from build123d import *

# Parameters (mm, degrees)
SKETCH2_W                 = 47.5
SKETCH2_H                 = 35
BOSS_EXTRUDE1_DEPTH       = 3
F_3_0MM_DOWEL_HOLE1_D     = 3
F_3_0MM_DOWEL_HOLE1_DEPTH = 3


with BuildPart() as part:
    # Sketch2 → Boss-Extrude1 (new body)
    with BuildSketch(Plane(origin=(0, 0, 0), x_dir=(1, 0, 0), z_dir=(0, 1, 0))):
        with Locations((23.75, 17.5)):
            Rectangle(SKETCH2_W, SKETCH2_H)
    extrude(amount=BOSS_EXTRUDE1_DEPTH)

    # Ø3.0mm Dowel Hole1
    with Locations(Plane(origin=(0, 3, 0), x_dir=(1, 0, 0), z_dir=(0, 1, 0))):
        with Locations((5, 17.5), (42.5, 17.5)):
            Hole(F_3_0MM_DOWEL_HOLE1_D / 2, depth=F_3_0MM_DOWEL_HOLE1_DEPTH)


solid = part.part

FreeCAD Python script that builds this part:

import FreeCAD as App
import Part
import Sketcher

doc = App.newDocument("Part")
params = doc.addObject("Spreadsheet::Sheet", "Params")
for row, (alias, value) in enumerate([
    ("sketch1_height", "35 mm"),
    ("sketch1_width", "47.5 mm"),
    ("pad1_length", "3 mm"),
    ("sketch2_diameter", "3 mm"),
    ("hole_diameter", "3 mm"),
    ("hole_depth", "3 mm"),
], start=1):
    params.set(f"A{row}", alias)
    params.set(f"B{row}", "=" + value)
    params.setAlias(f"B{row}", alias)

body = doc.addObject("PartDesign::Body", "Body")

# Sketch on XZ plane
sketch1 = body.newObject("Sketcher::SketchObject", "Sketch")
sketch1.AttachmentSupport = (doc.getObject("XZ_Plane"), [""])
sketch1.MapMode = "FlatFace"
sketch1.addGeometry(Part.LineSegment(App.Vector(0, -35, 0), App.Vector(0, 0, 0)), False)
sketch1.addGeometry(Part.LineSegment(App.Vector(0, 0, 0), App.Vector(48, 0, 0)), False)
sketch1.addGeometry(Part.LineSegment(App.Vector(48, 0, 0), App.Vector(48, -35, 0)), False)
sketch1.addGeometry(Part.LineSegment(App.Vector(48, -35, 0), App.Vector(0, -35, 0)), False)
sketch1.addConstraint(Sketcher.Constraint("Coincident", 0, 2, 1, 1))
sketch1.addConstraint(Sketcher.Constraint("Coincident", 1, 2, 2, 1))
sketch1.addConstraint(Sketcher.Constraint("Coincident", 2, 2, 3, 1))
sketch1.addConstraint(Sketcher.Constraint("Coincident", 3, 2, 0, 1))
sketch1.addConstraint(Sketcher.Constraint("Vertical", 0))
sketch1.addConstraint(Sketcher.Constraint("Horizontal", 1))
sketch1.addConstraint(Sketcher.Constraint("Vertical", 2))
sketch1.addConstraint(Sketcher.Constraint("Horizontal", 3))
sketch1.addConstraint(Sketcher.Constraint("Coincident", 0, 2, -1, 1))
sketch1.addConstraint(Sketcher.Constraint("DistanceY", 0, 1, 0, 2, 35.0))
sketch1.addConstraint(Sketcher.Constraint("DistanceX", 1, 1, 1, 2, 47.5))
sketch1.setExpression("Constraints[9]", "Params.sketch1_height")
sketch1.setExpression("Constraints[10]", "Params.sketch1_width")
pad1 = body.newObject("PartDesign::Pad", "Pad")
pad1.Profile = sketch1
pad1.setExpression("Length", "Params.pad1_length")
pad1.Reversed = True

# Sketch on XZ plane
sketch2 = body.newObject("Sketcher::SketchObject", "Sketch001")
sketch2.AttachmentSupport = (doc.getObject("XZ_Plane"), [""])
sketch2.MapMode = "FlatFace"
sketch2.AttachmentOffset = App.Placement(App.Vector(0, 0, -3), App.Rotation())
sketch2.addGeometry(Part.Circle(App.Vector(5, -17.5, 0), App.Vector(0, 0, 1), 1.5), False)
sketch2.addGeometry(Part.Circle(App.Vector(42.5, -17.5, 0), App.Vector(0, 0, 1), 1.5), False)
sketch2.addConstraint(Sketcher.Constraint("Equal", 0, 1))
sketch2.addConstraint(Sketcher.Constraint("Horizontal", 0, 3, 1, 3))
sketch2.addConstraint(Sketcher.Constraint("Diameter", 0, 3.0))
sketch2.addConstraint(Sketcher.Constraint("DistanceX", -1, 1, 0, 3, 5.0))
sketch2.addConstraint(Sketcher.Constraint("DistanceY", 0, 3, -1, 1, 17.5))
sketch2.addConstraint(Sketcher.Constraint("DistanceX", -1, 1, 1, 3, 42.5))
sketch2.setExpression("Constraints[2]", "Params.sketch2_diameter")
doc.recompute()
hole = body.newObject("PartDesign::Hole", "Hole")
hole.Profile = sketch2
hole.ThreadType = "None"
hole.setExpression("Diameter", "Params.hole_diameter")
hole.DepthType = "Dimension"
hole.setExpression("Depth", "Params.hole_depth")
hole.DrillPoint = "Flat"
hole.Reversed = True

doc.recompute()
